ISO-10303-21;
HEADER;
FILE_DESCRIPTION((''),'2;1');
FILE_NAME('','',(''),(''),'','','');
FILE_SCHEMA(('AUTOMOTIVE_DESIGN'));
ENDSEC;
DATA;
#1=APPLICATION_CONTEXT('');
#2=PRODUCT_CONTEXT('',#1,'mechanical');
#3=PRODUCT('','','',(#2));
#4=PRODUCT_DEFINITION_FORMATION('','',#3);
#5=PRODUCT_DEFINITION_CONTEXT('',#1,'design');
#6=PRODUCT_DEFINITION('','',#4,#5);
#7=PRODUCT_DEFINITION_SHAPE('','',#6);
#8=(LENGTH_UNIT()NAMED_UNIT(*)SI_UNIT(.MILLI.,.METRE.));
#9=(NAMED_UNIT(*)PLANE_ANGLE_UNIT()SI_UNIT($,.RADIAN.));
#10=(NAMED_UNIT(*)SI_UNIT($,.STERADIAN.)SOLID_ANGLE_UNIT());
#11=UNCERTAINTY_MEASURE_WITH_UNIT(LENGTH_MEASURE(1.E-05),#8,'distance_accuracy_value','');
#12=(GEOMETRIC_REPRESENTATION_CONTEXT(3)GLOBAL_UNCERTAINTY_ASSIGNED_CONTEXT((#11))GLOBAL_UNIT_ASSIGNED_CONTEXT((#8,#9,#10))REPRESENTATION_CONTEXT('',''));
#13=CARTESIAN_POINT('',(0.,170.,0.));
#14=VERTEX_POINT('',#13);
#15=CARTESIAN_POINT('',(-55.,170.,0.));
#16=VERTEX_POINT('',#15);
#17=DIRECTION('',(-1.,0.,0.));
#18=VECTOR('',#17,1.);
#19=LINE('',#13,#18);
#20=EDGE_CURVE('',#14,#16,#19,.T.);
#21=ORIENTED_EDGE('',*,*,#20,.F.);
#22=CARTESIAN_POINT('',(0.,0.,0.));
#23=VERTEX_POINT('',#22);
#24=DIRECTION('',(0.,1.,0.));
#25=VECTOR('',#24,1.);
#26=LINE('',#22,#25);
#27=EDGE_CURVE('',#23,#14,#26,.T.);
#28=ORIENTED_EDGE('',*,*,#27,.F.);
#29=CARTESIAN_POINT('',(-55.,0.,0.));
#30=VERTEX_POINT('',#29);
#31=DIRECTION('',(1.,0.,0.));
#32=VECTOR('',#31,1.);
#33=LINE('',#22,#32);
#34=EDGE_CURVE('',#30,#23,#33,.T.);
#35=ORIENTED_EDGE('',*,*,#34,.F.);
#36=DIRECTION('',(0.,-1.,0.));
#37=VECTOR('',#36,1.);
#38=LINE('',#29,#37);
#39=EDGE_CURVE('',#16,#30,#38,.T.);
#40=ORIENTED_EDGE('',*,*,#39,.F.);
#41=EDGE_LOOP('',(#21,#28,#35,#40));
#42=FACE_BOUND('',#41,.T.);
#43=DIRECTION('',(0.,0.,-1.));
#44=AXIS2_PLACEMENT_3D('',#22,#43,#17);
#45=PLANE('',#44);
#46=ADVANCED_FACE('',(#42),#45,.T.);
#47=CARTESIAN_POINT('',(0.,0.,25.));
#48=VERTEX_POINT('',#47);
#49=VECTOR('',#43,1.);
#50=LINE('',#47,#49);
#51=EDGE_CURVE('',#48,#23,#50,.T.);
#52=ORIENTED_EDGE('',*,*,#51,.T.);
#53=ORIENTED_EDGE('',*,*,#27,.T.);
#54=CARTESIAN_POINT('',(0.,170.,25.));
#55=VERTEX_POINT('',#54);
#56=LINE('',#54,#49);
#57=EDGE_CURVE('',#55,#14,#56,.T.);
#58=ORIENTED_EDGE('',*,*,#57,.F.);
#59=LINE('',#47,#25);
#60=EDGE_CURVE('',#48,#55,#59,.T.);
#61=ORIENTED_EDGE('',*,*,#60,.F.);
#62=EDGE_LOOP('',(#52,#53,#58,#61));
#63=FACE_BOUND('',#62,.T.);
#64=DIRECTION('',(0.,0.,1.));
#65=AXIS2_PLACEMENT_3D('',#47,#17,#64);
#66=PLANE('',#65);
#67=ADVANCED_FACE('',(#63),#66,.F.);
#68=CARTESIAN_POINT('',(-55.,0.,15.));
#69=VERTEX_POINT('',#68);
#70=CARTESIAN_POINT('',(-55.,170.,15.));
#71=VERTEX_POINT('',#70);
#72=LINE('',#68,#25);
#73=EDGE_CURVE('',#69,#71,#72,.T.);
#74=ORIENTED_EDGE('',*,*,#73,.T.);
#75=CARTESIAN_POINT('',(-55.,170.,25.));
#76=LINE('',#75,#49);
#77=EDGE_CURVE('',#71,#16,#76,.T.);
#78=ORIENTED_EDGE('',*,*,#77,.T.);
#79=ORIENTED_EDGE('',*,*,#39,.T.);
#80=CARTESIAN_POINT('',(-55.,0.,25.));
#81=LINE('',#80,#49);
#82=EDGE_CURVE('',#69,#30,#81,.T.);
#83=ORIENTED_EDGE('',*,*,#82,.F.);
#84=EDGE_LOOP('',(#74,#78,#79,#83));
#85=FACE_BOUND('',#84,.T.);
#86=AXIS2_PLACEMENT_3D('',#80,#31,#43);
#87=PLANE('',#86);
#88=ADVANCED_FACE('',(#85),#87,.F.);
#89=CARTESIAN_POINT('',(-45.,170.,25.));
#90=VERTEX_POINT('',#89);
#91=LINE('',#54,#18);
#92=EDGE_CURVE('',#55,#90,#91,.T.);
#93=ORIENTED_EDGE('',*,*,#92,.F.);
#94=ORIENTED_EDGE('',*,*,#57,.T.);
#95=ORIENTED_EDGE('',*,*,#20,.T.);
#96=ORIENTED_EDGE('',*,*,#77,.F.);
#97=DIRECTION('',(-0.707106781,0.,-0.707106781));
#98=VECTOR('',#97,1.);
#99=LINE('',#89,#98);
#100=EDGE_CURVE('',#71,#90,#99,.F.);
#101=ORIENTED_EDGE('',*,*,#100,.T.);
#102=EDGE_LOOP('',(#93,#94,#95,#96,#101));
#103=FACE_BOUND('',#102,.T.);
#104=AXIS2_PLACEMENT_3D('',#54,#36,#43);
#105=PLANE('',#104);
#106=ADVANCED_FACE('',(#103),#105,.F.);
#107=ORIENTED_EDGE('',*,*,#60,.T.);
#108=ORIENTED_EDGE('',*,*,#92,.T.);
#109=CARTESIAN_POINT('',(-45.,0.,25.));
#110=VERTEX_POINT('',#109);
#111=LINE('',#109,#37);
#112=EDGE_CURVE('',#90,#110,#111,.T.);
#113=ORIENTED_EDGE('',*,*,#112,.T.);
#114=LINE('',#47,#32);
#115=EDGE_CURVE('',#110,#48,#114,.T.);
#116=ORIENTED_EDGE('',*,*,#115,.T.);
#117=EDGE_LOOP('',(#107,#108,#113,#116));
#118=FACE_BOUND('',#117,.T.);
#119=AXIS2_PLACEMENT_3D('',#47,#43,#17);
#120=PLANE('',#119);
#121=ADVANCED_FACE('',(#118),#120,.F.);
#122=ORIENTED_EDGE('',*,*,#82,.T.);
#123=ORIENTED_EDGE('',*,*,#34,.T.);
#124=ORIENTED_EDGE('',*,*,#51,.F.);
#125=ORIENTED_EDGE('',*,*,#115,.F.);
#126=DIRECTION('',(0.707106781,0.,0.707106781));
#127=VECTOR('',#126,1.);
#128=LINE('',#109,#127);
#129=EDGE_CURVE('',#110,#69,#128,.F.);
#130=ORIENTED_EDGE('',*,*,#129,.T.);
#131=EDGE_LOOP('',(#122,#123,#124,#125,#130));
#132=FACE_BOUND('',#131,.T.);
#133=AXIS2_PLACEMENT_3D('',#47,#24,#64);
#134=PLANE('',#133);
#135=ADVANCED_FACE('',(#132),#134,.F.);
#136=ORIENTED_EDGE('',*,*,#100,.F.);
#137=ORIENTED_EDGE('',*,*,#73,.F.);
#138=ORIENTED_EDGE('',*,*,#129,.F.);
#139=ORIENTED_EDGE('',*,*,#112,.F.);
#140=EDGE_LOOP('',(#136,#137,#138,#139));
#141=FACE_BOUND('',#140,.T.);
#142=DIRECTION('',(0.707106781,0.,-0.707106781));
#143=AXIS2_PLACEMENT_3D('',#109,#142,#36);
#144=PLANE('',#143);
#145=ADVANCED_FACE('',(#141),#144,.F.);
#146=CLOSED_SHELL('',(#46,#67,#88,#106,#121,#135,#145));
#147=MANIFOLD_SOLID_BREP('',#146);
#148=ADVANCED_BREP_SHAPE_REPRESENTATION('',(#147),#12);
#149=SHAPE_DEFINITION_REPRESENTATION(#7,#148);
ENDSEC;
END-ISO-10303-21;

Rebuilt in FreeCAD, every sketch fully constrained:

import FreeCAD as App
import Part
import Sketcher
from FreeCAD import Vector
Q = App.Units.Quantity


def edges_at(feature, points):
    """Names of the edges that pass closest to the given points."""
    edges = feature.Shape.Edges
    near = lambda p: min(range(len(edges)), key=lambda i: edges[i].distToShape(Part.Vertex(*p))[0])
    return sorted({f"Edge{near(p) + 1}" for p in points})


def add_polygon(sketch, points):
    """Adds a closed chain of lines whose ends are joined by coincident constraints."""
    first, n = sketch.GeometryCount, len(points)
    for a, b in zip(points, points[1:] + points[:1]):
        sketch.addGeometry(Part.LineSegment(App.Vector(*a, 0), App.Vector(*b, 0)), False)
    for i in range(n):
        sketch.addConstraint(Sketcher.Constraint("Coincident", first + i, 2, first + (i + 1) % n, 1))

doc = App.newDocument("Part")
body = doc.addObject("PartDesign::Body", "Body")

# Sketch on XY plane
sketch1 = body.newObject("Sketcher::SketchObject", "Sketch")
sketch1.AttachmentSupport = (doc.getObject("XY_Plane"), [""])
sketch1.MapMode = "FlatFace"
add_polygon(sketch1, [(-55, 0), (0, 0), (0, 170), (-55, 170)])  # lines 0-3
sketch1.addConstraint(Sketcher.Constraint("Horizontal", 0))
sketch1.addConstraint(Sketcher.Constraint("Vertical", 1))
sketch1.addConstraint(Sketcher.Constraint("Horizontal", 2))
sketch1.addConstraint(Sketcher.Constraint("Vertical", 3))
sketch1.addConstraint(Sketcher.Constraint("Coincident", 0, 2, -1, 1))
sketch1.addConstraint(Sketcher.Constraint("DistanceX", 0, 1, 0, 2, Q("55 mm")))
sketch1.addConstraint(Sketcher.Constraint("DistanceY", 1, 1, 1, 2, Q("170 mm")))
pad1 = body.newObject("PartDesign::Pad", "Pad")
pad1.Profile = sketch1
pad1.Length = 25
doc.recompute()

chamfer = body.newObject("PartDesign::Chamfer", "Chamfer")
chamfer.Base = (pad1, edges_at(pad1, [(-55, 85, 25)]))
chamfer.Size = 10

doc.recompute()
